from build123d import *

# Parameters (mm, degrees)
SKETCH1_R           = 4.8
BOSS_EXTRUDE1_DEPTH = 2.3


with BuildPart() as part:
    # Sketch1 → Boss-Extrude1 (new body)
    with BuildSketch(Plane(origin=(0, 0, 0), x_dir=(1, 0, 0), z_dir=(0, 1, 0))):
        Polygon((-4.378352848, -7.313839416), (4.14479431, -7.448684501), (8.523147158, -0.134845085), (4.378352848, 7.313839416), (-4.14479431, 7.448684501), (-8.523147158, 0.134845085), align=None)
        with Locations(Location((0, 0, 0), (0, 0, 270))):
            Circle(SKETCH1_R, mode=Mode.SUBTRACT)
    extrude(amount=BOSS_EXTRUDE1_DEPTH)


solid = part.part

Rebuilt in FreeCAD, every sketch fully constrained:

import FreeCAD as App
import Part
import Sketcher
from FreeCAD import Vector

doc = App.newDocument("Part")
body = doc.addObject("PartDesign::Body", "Body")

# Sketch on XZ plane
sketch1 = body.newObject("Sketcher::SketchObject", "Sketch")
sketch1.AttachmentSupport = (doc.getObject("XZ_Plane"), [""])
sketch1.MapMode = "FlatFace"
sketch1.addGeometry([
    Part.LineSegment(Vector(-4.378353, 7.313839, 0), Vector(4.144794, 7.448685, 0)),  # 0
    Part.LineSegment(Vector(4.144794, 7.448685, 0), Vector(8.523147, 0.134845, 0)),  # 1
    Part.LineSegment(Vector(8.523147, 0.134845, 0), Vector(4.378353, -7.313839, 0)),  # 2
    Part.LineSegment(Vector(4.378353, -7.313839, 0), Vector(-4.144794, -7.448685, 0)),  # 3
    Part.LineSegment(Vector(-4.144794, -7.448685, 0), Vector(-8.523147, -0.134845, 0)),  # 4
    Part.LineSegment(Vector(-8.523147, -0.134845, 0), Vector(-4.378353, 7.313839, 0)),  # 5
    Part.Circle(Vector(0, 0, 0), Vector(0, 0, 1), 4.8),  # 6
], False)
sketch1.addConstraint([
    Sketcher.Constraint("Coincident", 0, 2, 1, 1),
    Sketcher.Constraint("Coincident", 1, 2, 2, 1),
    Sketcher.Constraint("Coincident", 2, 2, 3, 1),
    Sketcher.Constraint("Coincident", 3, 2, 4, 1),
    Sketcher.Constraint("Coincident", 4, 2, 5, 1),
    Sketcher.Constraint("Coincident", 5, 2, 0, 1),
    Sketcher.Constraint("Coincident", 6, 3, -1, 1),
    Sketcher.Constraint("Symmetric", 0, 2, 3, 2, -1, 1),
    Sketcher.Constraint("Symmetric", 1, 2, 4, 2, -1, 1),
    Sketcher.Constraint("Symmetric", 2, 2, 5, 2, -1, 1),
    Sketcher.Constraint("Equal", 0, 1),
    Sketcher.Constraint("Equal", 1, 2),
    Sketcher.Constraint("Diameter", 6, 9.6),
    Sketcher.Constraint("DistanceX", 4, 2, 2, 2, 12.9015),
    Sketcher.Constraint("DistanceY", 2, 2, -1, 1, 7.313839),
    Sketcher.Constraint("DistanceY", 1, 2, 0, 2, 7.313839),
    Sketcher.Constraint("DistanceX", 0, 2, 2, 2, 0.233559),
])
pad1 = body.newObject("PartDesign::Pad", "Pad")
pad1.Profile = sketch1
pad1.Length = 2.3
pad1.Reversed = True

doc.recompute()
